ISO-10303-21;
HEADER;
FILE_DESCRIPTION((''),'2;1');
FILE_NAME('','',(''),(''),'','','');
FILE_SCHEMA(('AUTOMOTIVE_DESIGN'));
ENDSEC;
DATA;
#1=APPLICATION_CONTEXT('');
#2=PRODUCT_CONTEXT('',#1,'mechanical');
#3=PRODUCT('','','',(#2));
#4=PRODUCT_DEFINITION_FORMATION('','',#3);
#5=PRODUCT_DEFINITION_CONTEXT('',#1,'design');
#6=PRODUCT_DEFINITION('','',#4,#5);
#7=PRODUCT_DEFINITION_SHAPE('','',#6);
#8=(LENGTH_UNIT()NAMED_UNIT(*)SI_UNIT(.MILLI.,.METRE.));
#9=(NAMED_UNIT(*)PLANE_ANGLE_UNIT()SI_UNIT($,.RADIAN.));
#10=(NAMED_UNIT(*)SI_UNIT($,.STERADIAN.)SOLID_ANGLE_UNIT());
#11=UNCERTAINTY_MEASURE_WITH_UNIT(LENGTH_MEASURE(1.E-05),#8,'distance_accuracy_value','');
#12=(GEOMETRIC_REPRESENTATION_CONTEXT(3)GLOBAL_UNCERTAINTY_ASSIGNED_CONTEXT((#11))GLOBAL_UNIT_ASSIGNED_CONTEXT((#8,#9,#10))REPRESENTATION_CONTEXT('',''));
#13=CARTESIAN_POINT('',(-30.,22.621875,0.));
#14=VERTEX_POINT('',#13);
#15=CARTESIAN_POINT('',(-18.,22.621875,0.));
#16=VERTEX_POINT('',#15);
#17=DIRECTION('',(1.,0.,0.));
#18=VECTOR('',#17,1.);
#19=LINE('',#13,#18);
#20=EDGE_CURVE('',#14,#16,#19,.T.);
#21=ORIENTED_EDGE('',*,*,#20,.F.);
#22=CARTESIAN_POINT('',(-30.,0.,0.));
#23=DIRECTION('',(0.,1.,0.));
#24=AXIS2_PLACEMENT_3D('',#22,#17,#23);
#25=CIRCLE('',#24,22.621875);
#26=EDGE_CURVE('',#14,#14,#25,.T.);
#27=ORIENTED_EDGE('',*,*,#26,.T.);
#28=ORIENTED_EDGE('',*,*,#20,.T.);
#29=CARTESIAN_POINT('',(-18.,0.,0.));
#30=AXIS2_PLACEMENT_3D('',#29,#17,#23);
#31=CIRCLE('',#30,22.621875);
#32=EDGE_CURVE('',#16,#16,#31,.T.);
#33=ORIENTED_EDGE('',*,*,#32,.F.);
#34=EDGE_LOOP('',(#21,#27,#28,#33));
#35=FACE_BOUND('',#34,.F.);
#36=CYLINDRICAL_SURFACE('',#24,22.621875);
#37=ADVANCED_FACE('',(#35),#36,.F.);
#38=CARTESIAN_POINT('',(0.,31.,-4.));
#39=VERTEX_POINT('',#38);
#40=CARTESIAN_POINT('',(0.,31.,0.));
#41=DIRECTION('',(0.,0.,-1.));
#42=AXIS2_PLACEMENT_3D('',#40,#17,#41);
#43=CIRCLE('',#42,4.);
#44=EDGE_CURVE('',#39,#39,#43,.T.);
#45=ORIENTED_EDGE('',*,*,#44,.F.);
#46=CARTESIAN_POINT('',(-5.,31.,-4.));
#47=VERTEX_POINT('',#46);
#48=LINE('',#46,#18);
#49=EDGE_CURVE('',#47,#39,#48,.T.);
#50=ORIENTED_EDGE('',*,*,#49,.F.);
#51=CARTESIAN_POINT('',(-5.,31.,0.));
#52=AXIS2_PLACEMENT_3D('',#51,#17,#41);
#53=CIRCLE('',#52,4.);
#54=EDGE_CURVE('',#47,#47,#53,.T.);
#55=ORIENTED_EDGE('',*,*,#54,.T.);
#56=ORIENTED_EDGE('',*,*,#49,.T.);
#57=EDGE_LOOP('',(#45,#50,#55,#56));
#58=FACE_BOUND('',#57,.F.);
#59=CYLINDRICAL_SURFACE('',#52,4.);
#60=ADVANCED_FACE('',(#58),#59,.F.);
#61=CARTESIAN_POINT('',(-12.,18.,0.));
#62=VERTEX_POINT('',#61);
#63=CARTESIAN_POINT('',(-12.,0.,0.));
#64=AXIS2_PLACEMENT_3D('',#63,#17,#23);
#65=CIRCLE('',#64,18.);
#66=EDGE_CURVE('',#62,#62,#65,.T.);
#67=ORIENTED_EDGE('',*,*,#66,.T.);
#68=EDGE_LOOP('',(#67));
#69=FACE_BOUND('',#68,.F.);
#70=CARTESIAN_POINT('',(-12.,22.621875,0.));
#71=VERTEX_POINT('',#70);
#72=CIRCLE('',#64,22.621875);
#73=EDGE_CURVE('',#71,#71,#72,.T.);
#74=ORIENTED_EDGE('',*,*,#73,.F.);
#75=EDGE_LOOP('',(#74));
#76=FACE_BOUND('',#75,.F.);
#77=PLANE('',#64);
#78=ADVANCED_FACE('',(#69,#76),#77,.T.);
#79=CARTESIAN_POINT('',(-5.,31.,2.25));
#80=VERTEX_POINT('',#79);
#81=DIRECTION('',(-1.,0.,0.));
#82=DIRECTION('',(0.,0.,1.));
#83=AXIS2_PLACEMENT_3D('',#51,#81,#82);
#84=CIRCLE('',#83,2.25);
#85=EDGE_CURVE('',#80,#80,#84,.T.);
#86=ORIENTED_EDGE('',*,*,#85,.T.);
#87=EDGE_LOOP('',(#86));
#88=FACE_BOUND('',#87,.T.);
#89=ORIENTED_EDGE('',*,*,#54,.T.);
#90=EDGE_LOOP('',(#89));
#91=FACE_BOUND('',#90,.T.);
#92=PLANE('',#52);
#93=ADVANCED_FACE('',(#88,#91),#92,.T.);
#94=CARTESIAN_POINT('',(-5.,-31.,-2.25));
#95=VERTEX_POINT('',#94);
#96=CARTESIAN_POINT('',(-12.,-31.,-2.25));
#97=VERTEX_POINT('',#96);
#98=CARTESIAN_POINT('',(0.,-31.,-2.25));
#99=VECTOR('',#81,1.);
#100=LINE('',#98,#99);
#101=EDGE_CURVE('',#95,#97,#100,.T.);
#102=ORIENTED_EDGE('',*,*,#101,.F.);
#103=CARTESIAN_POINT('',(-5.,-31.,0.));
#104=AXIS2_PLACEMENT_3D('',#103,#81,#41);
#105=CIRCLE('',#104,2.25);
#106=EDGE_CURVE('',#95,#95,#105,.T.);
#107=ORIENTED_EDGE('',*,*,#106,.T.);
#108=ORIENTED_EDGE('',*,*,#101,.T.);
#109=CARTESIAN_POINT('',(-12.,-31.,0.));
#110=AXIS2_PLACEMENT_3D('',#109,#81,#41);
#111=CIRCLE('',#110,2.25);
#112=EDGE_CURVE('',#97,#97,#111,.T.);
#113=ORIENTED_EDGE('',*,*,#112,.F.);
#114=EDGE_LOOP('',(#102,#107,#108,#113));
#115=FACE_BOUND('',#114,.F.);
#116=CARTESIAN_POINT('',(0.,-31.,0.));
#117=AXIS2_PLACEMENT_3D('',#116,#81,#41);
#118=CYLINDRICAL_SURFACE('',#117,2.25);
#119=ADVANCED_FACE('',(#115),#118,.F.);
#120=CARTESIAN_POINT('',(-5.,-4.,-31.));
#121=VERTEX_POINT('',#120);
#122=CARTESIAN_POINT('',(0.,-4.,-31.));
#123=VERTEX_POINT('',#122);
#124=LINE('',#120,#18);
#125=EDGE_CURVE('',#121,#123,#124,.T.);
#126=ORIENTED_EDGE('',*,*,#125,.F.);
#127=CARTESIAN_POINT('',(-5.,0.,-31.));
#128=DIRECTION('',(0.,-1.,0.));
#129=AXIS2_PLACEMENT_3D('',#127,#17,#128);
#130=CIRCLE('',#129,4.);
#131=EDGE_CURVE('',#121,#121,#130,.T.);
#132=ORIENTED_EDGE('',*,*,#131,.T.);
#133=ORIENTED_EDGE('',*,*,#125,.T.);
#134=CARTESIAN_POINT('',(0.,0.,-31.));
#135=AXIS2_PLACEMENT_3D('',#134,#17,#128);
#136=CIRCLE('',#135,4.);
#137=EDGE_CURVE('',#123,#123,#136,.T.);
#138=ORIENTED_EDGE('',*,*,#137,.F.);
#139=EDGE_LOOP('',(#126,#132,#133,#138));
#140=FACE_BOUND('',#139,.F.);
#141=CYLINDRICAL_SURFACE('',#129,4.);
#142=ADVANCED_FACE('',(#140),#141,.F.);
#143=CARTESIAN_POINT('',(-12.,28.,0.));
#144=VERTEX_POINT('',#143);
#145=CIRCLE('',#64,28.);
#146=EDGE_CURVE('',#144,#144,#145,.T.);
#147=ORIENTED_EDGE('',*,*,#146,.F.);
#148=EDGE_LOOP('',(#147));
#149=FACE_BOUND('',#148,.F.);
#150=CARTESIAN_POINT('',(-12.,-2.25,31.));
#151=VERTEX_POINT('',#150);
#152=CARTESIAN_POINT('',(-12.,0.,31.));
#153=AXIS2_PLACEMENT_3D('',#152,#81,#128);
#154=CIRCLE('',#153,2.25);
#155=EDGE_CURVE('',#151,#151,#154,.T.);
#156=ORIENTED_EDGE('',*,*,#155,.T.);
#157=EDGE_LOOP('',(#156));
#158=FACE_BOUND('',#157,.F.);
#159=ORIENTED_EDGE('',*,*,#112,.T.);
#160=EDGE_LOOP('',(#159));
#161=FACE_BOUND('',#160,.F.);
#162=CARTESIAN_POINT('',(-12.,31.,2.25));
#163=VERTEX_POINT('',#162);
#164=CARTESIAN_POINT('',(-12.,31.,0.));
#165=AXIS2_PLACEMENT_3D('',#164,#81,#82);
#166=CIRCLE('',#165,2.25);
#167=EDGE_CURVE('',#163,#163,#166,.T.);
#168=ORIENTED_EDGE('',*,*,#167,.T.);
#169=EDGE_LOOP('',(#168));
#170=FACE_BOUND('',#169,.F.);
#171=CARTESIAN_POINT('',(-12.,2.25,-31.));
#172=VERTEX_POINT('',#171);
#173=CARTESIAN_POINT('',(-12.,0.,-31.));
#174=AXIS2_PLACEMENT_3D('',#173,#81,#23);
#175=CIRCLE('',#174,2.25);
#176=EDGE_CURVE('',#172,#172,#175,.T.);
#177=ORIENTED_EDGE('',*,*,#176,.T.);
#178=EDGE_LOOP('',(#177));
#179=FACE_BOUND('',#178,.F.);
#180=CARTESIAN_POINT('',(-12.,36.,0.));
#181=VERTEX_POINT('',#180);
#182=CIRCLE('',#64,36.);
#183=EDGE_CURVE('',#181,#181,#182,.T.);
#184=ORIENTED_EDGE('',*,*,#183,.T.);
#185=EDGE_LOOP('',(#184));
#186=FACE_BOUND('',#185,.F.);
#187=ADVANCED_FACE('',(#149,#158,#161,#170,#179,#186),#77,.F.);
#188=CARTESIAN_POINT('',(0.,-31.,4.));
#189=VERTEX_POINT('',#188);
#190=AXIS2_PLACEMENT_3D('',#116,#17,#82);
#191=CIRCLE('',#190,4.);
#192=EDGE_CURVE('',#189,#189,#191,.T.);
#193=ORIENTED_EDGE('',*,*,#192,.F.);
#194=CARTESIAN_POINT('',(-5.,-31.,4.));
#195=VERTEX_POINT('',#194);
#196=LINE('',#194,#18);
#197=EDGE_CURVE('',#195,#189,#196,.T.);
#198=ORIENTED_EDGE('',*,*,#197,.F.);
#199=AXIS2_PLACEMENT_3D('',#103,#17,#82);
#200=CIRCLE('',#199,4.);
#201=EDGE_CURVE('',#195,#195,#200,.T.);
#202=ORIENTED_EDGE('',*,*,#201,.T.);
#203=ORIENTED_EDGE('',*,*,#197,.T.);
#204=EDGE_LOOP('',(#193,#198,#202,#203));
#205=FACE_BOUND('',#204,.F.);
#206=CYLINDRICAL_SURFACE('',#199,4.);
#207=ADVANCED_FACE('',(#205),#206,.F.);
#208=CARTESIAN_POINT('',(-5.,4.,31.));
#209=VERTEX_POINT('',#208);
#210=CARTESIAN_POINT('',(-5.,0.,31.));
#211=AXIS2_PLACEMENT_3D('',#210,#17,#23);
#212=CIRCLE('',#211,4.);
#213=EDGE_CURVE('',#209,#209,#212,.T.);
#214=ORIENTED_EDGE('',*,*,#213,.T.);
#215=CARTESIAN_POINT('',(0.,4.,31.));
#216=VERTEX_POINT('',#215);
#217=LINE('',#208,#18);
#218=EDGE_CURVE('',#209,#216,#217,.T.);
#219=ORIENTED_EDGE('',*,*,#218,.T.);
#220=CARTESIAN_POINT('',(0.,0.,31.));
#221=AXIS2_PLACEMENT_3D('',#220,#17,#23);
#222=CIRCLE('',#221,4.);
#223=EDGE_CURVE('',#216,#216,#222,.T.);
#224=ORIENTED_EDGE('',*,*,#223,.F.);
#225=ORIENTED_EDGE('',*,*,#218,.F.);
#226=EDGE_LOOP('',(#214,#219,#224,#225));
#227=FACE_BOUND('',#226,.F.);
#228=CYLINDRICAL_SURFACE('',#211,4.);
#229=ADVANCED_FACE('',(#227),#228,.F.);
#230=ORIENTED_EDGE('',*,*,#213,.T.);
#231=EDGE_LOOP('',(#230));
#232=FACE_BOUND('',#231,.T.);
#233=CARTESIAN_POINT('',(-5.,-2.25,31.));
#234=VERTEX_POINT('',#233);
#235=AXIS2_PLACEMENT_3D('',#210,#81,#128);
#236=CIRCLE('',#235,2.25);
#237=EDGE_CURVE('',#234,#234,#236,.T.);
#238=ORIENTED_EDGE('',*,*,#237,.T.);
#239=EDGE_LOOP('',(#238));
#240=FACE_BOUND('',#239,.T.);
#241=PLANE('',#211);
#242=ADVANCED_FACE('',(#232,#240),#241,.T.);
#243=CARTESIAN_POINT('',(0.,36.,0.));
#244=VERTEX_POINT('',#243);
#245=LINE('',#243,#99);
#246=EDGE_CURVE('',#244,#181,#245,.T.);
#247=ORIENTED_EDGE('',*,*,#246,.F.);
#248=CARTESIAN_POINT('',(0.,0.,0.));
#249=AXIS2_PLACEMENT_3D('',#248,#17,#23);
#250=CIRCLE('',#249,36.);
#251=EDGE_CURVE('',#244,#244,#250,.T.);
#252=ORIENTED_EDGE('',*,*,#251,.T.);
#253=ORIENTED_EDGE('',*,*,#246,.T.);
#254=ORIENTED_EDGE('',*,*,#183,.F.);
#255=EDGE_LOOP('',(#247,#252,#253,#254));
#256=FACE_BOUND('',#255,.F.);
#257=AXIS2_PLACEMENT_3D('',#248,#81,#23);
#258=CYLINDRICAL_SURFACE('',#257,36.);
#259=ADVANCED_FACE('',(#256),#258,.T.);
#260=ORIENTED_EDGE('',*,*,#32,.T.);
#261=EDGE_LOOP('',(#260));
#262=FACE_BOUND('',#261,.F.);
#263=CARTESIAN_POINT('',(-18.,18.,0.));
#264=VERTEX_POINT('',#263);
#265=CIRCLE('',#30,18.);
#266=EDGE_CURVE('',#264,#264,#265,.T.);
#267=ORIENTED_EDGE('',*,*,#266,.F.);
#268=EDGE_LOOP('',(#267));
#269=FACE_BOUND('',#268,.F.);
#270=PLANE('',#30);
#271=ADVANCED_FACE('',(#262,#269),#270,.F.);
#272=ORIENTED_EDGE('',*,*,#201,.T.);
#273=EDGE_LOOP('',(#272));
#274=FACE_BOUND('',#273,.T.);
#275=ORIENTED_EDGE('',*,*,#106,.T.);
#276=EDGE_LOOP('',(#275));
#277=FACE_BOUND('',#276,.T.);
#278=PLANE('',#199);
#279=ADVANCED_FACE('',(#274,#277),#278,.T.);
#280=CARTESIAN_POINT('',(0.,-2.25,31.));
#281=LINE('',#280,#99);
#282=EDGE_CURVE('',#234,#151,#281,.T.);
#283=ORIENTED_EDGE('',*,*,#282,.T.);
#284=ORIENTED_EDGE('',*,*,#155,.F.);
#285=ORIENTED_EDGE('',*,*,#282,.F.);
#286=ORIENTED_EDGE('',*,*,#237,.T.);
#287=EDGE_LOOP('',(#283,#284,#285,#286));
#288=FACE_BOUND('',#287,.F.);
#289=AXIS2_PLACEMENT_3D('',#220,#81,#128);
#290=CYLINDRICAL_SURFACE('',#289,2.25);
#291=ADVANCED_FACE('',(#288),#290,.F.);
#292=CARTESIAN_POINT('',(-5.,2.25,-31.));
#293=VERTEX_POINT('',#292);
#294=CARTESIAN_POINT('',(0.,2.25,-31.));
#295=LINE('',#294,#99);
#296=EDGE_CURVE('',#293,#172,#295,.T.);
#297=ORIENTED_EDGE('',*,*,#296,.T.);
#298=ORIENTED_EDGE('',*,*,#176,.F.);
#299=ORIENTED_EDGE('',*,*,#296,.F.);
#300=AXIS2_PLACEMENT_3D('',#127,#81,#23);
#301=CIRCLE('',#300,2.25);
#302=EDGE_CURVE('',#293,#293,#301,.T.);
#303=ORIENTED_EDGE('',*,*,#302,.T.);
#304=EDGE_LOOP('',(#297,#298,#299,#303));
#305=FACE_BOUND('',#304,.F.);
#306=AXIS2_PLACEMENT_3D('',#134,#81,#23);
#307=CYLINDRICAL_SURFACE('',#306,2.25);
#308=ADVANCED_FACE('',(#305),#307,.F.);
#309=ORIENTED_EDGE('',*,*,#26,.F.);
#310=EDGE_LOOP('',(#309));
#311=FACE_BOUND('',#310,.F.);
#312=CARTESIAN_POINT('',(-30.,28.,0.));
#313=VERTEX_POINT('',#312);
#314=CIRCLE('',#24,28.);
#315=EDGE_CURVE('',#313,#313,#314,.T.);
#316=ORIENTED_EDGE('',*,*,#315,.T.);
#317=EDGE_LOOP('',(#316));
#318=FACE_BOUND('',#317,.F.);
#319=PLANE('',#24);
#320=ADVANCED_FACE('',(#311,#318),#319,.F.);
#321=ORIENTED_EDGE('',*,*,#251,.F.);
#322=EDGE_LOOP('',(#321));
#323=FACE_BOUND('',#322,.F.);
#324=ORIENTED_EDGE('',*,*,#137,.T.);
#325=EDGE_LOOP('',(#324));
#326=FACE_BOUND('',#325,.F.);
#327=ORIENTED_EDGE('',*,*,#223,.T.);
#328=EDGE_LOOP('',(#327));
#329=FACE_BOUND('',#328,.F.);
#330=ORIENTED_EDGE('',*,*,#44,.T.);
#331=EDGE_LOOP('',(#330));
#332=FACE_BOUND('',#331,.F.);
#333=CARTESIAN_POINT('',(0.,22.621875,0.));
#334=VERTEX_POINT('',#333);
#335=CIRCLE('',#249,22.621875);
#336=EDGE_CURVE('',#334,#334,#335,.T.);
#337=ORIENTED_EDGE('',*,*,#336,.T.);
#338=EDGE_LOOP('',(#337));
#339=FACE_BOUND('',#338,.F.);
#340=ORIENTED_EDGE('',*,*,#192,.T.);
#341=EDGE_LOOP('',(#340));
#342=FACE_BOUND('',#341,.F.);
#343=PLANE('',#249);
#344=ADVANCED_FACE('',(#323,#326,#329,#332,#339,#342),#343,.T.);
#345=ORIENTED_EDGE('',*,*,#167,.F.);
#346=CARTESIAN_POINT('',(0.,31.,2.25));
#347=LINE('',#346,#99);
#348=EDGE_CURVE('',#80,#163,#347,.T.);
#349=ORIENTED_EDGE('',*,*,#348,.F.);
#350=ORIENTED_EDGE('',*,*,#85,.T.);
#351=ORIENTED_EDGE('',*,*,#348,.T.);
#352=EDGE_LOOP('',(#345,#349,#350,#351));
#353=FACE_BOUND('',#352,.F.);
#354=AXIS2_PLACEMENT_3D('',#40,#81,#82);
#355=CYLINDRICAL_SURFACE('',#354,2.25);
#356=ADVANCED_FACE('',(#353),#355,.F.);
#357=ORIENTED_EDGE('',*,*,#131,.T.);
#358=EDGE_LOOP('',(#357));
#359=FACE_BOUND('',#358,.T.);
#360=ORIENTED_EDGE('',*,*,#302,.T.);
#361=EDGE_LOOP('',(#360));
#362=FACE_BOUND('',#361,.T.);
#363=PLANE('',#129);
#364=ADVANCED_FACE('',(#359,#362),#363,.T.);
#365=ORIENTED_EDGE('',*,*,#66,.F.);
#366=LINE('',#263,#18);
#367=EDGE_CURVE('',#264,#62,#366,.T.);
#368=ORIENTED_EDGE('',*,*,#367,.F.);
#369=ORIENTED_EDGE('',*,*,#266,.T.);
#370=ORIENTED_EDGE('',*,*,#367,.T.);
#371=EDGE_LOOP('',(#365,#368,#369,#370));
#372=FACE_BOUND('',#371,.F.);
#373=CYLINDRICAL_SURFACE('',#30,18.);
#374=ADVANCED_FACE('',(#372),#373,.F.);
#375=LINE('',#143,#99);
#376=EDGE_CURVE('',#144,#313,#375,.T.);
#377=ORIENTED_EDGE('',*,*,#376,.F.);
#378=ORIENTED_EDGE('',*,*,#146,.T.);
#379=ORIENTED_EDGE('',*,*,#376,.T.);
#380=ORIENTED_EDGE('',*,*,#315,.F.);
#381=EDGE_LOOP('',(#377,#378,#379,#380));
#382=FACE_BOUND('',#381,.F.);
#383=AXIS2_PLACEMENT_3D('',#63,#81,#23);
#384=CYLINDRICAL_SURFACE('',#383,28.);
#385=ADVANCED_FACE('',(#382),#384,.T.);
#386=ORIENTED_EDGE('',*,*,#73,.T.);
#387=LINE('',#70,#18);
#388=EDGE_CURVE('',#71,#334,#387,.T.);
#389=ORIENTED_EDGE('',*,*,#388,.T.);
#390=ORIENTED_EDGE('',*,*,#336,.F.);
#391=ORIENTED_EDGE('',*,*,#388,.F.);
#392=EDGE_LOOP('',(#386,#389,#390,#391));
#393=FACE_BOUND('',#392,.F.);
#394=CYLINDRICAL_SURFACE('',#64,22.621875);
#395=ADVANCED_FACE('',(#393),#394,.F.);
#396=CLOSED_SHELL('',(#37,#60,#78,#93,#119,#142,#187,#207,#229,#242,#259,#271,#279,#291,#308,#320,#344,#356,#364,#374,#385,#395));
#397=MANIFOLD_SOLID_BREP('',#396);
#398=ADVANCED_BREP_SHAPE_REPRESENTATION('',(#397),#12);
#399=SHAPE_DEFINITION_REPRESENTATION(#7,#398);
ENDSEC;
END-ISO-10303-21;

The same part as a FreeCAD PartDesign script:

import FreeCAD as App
import Part
import Sketcher
from FreeCAD import Vector


def add_polygon(sketch, points):
    """Adds a closed chain of lines whose ends are joined by coincident constraints."""
    first, n = sketch.GeometryCount, len(points)
    for a, b in zip(points, points[1:] + points[:1]):
        sketch.addGeometry(Part.LineSegment(App.Vector(*a, 0), App.Vector(*b, 0)), False)
    for i in range(n):
        sketch.addConstraint(Sketcher.Constraint("Coincident", first + i, 2, first + (i + 1) % n, 1))

doc = App.newDocument("Part")
body = doc.addObject("PartDesign::Body", "Body")

# Sketch on XY plane
sketch1 = body.newObject("Sketcher::SketchObject", "Sketch")
sketch1.AttachmentSupport = (doc.getObject("XY_Plane"), [""])
sketch1.MapMode = "FlatFace"
add_polygon(sketch1, [(-30, 22.6), (-18, 22.6), (-18, 18), (-12, 18), (-12, 22.6), (0, 22.6), (0, 36), (-12, 36), (-12, 28), (-30, 28)])  # lines 0-9
sketch1.addConstraint([
    Sketcher.Constraint("Horizontal", 0),
    Sketcher.Constraint("Vertical", 1),
    Sketcher.Constraint("Horizontal", 2),
    Sketcher.Constraint("Vertical", 3),
    Sketcher.Constraint("Horizontal", 4),
    Sketcher.Constraint("Vertical", 5),
    Sketcher.Constraint("Horizontal", 6),
    Sketcher.Constraint("Vertical", 7),
    Sketcher.Constraint("Horizontal", 8),
    Sketcher.Constraint("Vertical", 9),
    Sketcher.Constraint("PointOnObject", 4, 2, -2),
    Sketcher.Constraint("Horizontal", 0, 2, 3, 2),
    Sketcher.Constraint("Vertical", 3, 2, 6, 2),
    Sketcher.Constraint("Equal", 0, 4),
    Sketcher.Constraint("DistanceX", 0, 1, 0, 2, 12.0),
    Sketcher.Constraint("DistanceX", 2, 1, 2, 2, 6.0),
    Sketcher.Constraint("DistanceY", 7, 2, 7, 1, 8.0),
    Sketcher.Constraint("DistanceY", -1, 1, 1, 2, 18.0),
    Sketcher.Constraint("DistanceY", -1, 1, 5, 2, 36.0),
    Sketcher.Constraint("DistanceY", 1, 2, 1, 1, 4.621875),
])
revolution = body.newObject("PartDesign::Revolution", "Revolution")
revolution.Profile = sketch1
revolution.ReferenceAxis = (sketch1, ["H_Axis"])
revolution.Angle = 360

# Sketch on YZ plane
sketch2 = body.newObject("Sketcher::SketchObject", "Sketch001")
sketch2.AttachmentSupport = (doc.getObject("YZ_Plane"), [""])
sketch2.MapMode = "FlatFace"
sketch2.addGeometry(Part.Circle(Vector(31, 0, 0), Vector(0, 0, 1), 2.2), False)
sketch2.addConstraint([
    Sketcher.Constraint("PointOnObject", 0, 3, -1),
    Sketcher.Constraint("Diameter", 0, 4.5),
    Sketcher.Constraint("DistanceX", -1, 1, 0, 3, 31.0),
])
doc.recompute()
hole = body.newObject("PartDesign::Hole", "Hole")
hole.Profile = sketch2
hole.ThreadType = "None"
hole.Diameter = 4.5
hole.DepthType = "ThroughAll"
hole.HoleCutType = "Counterbore"
hole.HoleCutDiameter = 8
hole.HoleCutDepth = 5
doc.recompute()

polarpattern = body.newObject("PartDesign::PolarPattern", "PolarPattern")
polarpattern.Originals = [hole]
polarpattern.Axis = (doc.getObject("X_Axis"), [""])
polarpattern.Angle = 360
polarpattern.Occurrences = 4
body.Tip = polarpattern

doc.recompute()
